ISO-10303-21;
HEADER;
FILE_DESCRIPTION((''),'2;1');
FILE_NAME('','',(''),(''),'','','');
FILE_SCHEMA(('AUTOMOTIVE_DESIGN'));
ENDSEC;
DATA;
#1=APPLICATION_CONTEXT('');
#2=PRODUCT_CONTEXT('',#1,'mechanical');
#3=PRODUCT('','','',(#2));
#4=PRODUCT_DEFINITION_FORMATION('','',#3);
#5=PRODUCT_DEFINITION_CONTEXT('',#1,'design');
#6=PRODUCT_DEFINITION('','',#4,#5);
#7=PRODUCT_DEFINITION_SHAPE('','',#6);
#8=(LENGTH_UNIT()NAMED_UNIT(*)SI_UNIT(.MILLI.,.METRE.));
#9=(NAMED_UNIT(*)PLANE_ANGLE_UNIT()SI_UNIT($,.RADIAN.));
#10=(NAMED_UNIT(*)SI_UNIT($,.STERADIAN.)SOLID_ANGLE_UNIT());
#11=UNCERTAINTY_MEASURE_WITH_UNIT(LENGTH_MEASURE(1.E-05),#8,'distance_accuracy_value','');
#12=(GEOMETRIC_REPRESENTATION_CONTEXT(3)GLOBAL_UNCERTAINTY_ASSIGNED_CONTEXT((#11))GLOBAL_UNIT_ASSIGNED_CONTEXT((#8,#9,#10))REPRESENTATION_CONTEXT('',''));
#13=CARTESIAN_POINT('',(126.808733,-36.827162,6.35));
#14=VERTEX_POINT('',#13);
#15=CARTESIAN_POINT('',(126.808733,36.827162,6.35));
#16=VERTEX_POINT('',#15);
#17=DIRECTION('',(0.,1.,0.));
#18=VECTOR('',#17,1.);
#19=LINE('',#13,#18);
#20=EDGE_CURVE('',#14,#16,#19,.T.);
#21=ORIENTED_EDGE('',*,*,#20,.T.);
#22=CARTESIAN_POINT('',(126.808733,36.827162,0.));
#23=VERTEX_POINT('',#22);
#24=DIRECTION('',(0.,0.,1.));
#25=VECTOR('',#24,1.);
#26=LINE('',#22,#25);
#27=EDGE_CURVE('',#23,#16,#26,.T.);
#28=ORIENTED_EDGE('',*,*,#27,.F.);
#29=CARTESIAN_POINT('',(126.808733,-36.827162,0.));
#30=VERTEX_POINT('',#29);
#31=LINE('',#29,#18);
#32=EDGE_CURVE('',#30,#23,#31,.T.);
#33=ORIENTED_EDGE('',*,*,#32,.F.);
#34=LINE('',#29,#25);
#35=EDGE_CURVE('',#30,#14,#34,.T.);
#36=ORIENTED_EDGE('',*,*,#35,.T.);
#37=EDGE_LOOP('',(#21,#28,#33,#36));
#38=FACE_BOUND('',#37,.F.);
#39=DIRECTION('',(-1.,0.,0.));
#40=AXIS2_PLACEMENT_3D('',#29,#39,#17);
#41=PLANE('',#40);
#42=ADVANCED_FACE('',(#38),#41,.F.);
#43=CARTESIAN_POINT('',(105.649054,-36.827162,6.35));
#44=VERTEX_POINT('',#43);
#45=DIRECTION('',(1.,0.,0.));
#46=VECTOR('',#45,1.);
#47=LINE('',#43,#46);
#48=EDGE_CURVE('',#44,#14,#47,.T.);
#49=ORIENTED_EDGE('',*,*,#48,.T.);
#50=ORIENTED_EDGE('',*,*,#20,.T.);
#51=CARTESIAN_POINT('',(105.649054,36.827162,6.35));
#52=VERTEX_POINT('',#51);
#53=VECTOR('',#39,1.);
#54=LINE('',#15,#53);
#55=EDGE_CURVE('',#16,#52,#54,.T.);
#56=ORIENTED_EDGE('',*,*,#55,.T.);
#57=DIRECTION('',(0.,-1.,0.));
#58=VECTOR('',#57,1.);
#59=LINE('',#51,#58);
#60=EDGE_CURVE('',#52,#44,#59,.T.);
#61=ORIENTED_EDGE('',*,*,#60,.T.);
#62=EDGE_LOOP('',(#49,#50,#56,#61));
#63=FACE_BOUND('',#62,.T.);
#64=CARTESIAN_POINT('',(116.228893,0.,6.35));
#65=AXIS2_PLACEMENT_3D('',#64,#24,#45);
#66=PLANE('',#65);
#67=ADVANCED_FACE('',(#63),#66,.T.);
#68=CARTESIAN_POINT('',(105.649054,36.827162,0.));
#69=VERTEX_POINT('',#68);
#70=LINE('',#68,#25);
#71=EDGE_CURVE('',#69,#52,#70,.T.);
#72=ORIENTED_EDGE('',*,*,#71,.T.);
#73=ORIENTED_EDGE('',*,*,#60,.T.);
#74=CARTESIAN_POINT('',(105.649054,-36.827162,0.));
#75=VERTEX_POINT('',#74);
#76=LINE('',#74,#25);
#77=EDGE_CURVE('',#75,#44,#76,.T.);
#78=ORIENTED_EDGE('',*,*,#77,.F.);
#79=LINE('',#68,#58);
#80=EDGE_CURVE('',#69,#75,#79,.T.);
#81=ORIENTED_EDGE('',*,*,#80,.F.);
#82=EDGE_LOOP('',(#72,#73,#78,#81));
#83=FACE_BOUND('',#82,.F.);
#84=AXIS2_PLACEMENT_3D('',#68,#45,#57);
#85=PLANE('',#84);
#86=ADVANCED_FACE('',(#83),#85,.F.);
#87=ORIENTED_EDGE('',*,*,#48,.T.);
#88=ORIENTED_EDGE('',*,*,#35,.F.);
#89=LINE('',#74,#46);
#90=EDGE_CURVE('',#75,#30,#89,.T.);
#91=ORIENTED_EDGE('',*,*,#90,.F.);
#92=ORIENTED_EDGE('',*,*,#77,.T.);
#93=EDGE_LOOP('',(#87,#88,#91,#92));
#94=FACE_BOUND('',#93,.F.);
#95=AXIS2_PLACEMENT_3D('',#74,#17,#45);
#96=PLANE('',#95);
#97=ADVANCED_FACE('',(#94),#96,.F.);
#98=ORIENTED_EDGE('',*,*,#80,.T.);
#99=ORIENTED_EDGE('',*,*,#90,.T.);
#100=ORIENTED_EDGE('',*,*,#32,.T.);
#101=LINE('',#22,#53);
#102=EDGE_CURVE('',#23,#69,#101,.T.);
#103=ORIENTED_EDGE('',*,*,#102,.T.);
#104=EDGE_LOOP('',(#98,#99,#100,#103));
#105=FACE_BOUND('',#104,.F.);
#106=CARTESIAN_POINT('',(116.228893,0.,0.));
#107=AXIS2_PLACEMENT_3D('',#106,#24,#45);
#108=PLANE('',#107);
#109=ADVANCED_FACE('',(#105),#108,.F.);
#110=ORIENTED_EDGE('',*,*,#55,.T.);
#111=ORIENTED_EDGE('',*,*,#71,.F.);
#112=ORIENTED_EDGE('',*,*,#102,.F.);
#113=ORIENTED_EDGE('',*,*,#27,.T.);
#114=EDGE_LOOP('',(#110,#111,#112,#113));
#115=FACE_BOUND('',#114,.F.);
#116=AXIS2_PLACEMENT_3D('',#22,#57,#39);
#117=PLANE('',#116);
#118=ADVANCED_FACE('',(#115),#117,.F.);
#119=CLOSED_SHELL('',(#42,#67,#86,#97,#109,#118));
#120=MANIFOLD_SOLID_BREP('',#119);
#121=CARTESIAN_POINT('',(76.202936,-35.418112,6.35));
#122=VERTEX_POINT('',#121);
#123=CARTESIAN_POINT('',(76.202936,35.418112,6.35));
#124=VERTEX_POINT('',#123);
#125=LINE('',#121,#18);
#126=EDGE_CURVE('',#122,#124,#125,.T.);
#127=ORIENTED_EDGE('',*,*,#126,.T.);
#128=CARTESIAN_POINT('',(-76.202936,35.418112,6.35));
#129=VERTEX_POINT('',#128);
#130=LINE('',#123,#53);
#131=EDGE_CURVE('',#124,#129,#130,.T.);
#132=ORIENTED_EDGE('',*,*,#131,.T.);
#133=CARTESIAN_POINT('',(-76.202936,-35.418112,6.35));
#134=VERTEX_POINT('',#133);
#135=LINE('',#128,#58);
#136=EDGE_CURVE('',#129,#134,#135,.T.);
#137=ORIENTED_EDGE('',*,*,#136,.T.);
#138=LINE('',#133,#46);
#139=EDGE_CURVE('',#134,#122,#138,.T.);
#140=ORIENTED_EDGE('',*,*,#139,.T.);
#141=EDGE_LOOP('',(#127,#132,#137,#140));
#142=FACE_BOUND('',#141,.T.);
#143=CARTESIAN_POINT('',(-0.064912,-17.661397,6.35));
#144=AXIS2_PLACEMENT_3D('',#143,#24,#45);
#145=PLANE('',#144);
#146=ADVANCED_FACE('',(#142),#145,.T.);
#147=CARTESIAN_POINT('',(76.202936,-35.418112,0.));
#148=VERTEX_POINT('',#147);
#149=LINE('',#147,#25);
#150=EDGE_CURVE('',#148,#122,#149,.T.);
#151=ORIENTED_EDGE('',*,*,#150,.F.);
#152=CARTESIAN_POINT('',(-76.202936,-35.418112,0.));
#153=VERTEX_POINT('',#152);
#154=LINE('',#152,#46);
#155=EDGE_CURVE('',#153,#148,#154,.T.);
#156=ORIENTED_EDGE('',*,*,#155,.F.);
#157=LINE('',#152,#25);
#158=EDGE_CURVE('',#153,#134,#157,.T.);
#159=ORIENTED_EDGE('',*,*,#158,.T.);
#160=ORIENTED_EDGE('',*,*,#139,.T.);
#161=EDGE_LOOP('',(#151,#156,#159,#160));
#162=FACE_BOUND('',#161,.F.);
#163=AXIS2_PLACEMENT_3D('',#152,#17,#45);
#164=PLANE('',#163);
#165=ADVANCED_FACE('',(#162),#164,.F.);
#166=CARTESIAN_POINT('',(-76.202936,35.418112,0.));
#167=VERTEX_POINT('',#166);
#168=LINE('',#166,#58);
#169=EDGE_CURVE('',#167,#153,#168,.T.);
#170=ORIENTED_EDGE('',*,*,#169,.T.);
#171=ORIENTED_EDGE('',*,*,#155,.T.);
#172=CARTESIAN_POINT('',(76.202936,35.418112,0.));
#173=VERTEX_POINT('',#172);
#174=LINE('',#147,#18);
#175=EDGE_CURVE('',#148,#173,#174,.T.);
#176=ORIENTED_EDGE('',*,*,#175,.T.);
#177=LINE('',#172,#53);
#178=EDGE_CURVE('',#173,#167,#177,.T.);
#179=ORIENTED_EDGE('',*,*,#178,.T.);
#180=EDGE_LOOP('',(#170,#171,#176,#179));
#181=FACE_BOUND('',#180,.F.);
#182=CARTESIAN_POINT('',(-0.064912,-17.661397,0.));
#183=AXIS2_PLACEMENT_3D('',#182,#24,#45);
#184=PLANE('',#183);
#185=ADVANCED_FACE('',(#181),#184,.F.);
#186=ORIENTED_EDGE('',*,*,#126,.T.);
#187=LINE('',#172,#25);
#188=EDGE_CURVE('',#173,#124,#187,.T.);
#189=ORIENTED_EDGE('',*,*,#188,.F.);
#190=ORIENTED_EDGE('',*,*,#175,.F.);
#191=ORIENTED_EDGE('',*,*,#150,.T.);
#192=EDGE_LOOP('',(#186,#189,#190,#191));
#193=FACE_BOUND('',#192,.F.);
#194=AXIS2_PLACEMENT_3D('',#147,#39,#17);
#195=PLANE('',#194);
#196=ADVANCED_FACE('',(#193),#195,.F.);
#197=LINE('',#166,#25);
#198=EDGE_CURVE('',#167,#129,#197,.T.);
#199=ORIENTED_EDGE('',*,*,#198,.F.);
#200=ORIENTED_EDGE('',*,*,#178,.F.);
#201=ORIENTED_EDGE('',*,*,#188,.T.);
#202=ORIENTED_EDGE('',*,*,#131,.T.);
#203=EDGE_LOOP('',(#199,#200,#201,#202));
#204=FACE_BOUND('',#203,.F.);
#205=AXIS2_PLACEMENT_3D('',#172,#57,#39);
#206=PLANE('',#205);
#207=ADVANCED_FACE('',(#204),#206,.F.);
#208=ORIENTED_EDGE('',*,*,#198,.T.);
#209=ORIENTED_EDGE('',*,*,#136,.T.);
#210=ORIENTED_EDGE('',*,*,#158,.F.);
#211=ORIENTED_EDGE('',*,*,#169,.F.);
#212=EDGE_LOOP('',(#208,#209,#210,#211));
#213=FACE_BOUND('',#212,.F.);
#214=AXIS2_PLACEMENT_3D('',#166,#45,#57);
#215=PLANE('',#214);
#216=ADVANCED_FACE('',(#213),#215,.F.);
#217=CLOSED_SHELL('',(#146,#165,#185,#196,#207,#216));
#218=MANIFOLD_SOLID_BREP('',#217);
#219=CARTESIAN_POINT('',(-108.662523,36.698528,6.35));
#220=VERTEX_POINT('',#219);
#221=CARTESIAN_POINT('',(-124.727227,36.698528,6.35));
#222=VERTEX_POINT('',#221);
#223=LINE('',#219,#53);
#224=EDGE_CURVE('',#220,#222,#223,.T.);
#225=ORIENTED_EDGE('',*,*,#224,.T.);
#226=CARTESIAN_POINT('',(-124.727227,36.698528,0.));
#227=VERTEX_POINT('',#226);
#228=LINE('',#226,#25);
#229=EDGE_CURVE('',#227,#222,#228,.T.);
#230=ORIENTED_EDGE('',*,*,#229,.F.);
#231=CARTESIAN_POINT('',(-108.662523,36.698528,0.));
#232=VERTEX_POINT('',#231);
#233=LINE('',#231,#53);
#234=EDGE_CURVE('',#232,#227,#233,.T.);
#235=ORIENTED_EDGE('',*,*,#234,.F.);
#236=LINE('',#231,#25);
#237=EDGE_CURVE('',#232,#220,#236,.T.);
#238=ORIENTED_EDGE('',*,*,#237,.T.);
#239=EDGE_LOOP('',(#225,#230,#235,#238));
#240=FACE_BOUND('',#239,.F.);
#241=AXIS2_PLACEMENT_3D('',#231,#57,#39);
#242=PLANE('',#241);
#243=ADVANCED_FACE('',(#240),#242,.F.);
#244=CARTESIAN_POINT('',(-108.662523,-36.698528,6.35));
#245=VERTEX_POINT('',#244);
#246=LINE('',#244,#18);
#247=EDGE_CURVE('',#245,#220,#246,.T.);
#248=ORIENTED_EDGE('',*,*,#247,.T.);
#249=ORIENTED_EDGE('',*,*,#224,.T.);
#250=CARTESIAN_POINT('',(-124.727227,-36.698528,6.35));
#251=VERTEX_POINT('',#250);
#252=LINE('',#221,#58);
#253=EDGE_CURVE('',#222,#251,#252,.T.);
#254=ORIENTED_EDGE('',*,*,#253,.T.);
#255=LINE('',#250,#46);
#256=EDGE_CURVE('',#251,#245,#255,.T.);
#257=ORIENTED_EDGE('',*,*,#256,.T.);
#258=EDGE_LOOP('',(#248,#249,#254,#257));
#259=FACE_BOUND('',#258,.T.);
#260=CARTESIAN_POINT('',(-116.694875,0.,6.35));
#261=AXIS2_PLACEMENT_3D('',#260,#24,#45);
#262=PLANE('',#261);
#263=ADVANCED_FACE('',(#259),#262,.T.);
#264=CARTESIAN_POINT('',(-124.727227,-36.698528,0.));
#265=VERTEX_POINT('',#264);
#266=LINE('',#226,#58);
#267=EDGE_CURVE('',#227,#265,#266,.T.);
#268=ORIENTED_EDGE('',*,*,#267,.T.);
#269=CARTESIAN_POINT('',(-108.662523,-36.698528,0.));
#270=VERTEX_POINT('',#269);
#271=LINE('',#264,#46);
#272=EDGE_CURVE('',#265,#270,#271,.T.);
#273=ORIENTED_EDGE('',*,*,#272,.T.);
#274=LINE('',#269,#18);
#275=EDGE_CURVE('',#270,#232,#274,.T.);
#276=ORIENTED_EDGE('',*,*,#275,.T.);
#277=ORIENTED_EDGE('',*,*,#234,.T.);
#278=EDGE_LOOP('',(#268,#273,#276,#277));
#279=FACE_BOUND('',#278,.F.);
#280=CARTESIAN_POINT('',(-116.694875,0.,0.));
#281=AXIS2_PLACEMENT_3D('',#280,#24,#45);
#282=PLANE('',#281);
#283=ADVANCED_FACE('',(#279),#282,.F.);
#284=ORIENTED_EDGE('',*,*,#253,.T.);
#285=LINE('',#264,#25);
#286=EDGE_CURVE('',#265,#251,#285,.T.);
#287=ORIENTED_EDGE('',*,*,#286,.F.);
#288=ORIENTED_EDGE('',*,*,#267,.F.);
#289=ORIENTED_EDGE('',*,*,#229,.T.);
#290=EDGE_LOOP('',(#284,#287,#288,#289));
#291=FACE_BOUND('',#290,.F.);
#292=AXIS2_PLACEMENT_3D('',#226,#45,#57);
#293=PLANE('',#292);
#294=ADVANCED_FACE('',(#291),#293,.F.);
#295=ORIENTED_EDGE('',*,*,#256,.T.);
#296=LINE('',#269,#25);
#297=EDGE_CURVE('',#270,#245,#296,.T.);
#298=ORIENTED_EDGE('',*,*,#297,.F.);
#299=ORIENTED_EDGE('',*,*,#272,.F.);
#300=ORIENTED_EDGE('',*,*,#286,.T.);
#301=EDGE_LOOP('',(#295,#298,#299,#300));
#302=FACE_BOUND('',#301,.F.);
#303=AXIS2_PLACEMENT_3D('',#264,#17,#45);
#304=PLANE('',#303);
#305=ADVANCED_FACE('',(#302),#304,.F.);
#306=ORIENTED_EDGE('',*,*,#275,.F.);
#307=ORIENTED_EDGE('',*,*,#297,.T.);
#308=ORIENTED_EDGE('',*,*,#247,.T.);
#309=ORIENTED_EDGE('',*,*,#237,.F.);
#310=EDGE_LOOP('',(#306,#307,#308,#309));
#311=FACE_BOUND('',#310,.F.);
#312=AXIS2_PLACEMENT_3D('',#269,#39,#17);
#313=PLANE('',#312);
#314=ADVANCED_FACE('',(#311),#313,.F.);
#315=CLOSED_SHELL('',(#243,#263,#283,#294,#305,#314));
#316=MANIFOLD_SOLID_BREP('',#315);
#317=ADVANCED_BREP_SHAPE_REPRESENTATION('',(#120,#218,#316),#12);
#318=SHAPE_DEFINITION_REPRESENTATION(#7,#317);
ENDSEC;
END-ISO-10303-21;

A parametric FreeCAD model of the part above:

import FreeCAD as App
import Part
import Sketcher
from FreeCAD import Vector
Q = App.Units.Quantity

doc = App.newDocument("Part")
params = doc.addObject("Spreadsheet::Sheet", "Params")
for row, (alias, value) in enumerate([
    ("pad1_length", "0.25 in"),
], start=1):
    params.set(f"A{row}", alias)
    params.set(f"B{row}", "=" + value)
    params.setAlias(f"B{row}", alias)

body = doc.addObject("PartDesign::Body", "Body")
body.AllowCompound = True

# Sketch on XY plane
sketch1 = body.newObject("Sketcher::SketchObject", "Sketch")
sketch1.AttachmentSupport = (doc.getObject("XY_Plane"), [""])
sketch1.MapMode = "FlatFace"
sketch1.addGeometry([
    Part.LineSegment(Vector(-76.202936, -35.418112, 0), Vector(76.202936, -35.418112, 0)),  # 0
    Part.LineSegment(Vector(76.202936, -35.418112, 0), Vector(76.202936, 35.418112, 0)),  # 1
    Part.LineSegment(Vector(76.202936, 35.418112, 0), Vector(-76.202936, 35.418112, 0)),  # 2
    Part.LineSegment(Vector(-76.202936, 35.418112, 0), Vector(-76.202936, -35.418112, 0)),  # 3
    Part.LineSegment(Vector(-108.662523, -36.698528, 0), Vector(-108.662523, 36.698528, 0)),  # 4
    Part.LineSegment(Vector(-108.662523, 36.698528, 0), Vector(-124.727227, 36.698528, 0)),  # 5
    Part.LineSegment(Vector(-124.727227, 36.698528, 0), Vector(-124.727227, -36.698528, 0)),  # 6
    Part.LineSegment(Vector(-124.727227, -36.698528, 0), Vector(-108.662523, -36.698528, 0)),  # 7
    Part.LineSegment(Vector(105.649054, 36.827162, 0), Vector(105.649054, -36.827162, 0)),  # 8
    Part.LineSegment(Vector(105.649054, -36.827162, 0), Vector(126.808733, -36.827162, 0)),  # 9
    Part.LineSegment(Vector(126.808733, -36.827162, 0), Vector(126.808733, 36.827162, 0)),  # 10
    Part.LineSegment(Vector(126.808733, 36.827162, 0), Vector(105.649054, 36.827162, 0)),  # 11
], False)
sketch1.addConstraint([
    Sketcher.Constraint("Coincident", 0, 2, 1, 1),
    Sketcher.Constraint("Coincident", 1, 2, 2, 1),
    Sketcher.Constraint("Coincident", 2, 2, 3, 1),
    Sketcher.Constraint("Coincident", 3, 2, 0, 1),
    Sketcher.Constraint("Coincident", 4, 2, 5, 1),
    Sketcher.Constraint("Coincident", 5, 2, 6, 1),
    Sketcher.Constraint("Coincident", 6, 2, 7, 1),
    Sketcher.Constraint("Coincident", 7, 2, 4, 1),
    Sketcher.Constraint("Coincident", 8, 2, 9, 1),
    Sketcher.Constraint("Coincident", 9, 2, 10, 1),
    Sketcher.Constraint("Coincident", 10, 2, 11, 1),
    Sketcher.Constraint("Coincident", 11, 2, 8, 1),
    Sketcher.Constraint("Horizontal", 0),
    Sketcher.Constraint("Vertical", 1),
    Sketcher.Constraint("Horizontal", 2),
    Sketcher.Constraint("Vertical", 3),
    Sketcher.Constraint("Vertical", 4),
    Sketcher.Constraint("Horizontal", 5),
    Sketcher.Constraint("Vertical", 6),
    Sketcher.Constraint("Horizontal", 7),
    Sketcher.Constraint("Vertical", 8),
    Sketcher.Constraint("Horizontal", 9),
    Sketcher.Constraint("Vertical", 10),
    Sketcher.Constraint("Horizontal", 11),
    Sketcher.Constraint("Symmetric", 0, 2, 2, 2, -1, 1),
    Sketcher.Constraint("DistanceX", 0, 1, 0, 2, Q("152.405872 mm")),
    Sketcher.Constraint("DistanceX", 9, 1, 9, 2, Q("21.159679 mm")),
    Sketcher.Constraint("DistanceX", 5, 2, 5, 1, Q("16.064704 mm")),
    Sketcher.Constraint("DistanceY", 1, 1, 1, 2, Q("70.836224 mm")),
    Sketcher.Constraint("DistanceY", 4, 1, 4, 2, Q("73.397056 mm")),
    Sketcher.Constraint("DistanceY", 8, 2, 8, 1, Q("73.654324 mm")),
    Sketcher.Constraint("DistanceY", -1, 1, 4, 2, Q("36.698528 mm")),
    Sketcher.Constraint("DistanceX", 4, 2, 1, 2, Q("184.865459 mm")),
    Sketcher.Constraint("DistanceX", 0, 2, 8, 2, Q("29.446118 mm")),
    Sketcher.Constraint("DistanceY", 8, 2, 0, 2, Q("1.40905 mm")),
])
pad1 = body.newObject("PartDesign::Pad", "Pad")
pad1.Profile = sketch1
pad1.setExpression("Length", "Params.pad1_length")

doc.recompute()
